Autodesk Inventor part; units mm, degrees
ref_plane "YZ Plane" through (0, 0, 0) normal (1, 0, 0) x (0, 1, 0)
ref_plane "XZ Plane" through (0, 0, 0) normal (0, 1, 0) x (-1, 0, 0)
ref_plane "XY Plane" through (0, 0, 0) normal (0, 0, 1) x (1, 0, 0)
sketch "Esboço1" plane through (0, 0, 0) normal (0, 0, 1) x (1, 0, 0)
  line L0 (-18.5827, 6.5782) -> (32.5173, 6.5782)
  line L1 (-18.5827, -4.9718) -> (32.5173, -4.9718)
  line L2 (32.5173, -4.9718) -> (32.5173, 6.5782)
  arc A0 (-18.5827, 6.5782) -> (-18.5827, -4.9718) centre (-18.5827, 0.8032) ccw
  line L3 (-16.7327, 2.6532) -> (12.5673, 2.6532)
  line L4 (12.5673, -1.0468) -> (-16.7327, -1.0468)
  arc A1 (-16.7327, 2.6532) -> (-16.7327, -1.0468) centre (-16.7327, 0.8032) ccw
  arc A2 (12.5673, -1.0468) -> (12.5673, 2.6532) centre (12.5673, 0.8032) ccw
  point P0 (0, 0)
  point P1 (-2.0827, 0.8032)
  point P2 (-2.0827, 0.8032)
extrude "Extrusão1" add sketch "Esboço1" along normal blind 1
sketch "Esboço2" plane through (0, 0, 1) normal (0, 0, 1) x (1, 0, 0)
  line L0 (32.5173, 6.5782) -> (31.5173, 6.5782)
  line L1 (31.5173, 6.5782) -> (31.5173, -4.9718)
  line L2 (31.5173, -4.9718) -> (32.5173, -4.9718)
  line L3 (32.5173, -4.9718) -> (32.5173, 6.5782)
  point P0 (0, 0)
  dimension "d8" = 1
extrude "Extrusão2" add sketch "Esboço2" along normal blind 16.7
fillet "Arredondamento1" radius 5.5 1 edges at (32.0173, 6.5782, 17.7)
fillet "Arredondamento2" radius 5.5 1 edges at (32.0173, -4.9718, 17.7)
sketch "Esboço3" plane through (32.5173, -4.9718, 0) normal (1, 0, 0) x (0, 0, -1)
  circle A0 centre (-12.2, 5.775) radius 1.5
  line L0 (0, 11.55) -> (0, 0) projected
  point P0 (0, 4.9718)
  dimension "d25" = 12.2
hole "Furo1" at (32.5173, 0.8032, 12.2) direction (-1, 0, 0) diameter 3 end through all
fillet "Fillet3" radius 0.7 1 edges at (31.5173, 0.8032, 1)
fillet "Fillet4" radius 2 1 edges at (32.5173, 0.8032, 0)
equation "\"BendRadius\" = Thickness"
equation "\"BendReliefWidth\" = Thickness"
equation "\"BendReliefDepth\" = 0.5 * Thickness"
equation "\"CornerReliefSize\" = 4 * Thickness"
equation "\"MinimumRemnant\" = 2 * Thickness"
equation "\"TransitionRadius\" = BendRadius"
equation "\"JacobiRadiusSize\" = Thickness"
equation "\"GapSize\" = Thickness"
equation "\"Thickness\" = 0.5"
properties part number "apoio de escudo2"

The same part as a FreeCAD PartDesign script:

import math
import FreeCAD as App
import Part
import Sketcher
from FreeCAD import Vector


def edges_at(feature, points):
    """Names of the edges that pass closest to the given points."""
    edges = feature.Shape.Edges
    near = lambda p: min(range(len(edges)), key=lambda i: edges[i].distToShape(Part.Vertex(*p))[0])
    return sorted({f"Edge{near(p) + 1}" for p in points})


def add_polygon(sketch, points):
    """Adds a closed chain of lines whose ends are joined by coincident constraints."""
    first, n = sketch.GeometryCount, len(points)
    for a, b in zip(points, points[1:] + points[:1]):
        sketch.addGeometry(Part.LineSegment(App.Vector(*a, 0), App.Vector(*b, 0)), False)
    for i in range(n):
        sketch.addConstraint(Sketcher.Constraint("Coincident", first + i, 2, first + (i + 1) % n, 1))

doc = App.newDocument("Part")
body = doc.addObject("PartDesign::Body", "Body")

# Sketch on XY plane
sketch1 = body.newObject("Sketcher::SketchObject", "Sketch")
sketch1.AttachmentSupport = (doc.getObject("XY_Plane"), [""])
sketch1.MapMode = "FlatFace"
sketch1.addGeometry([
    Part.LineSegment(Vector(32.5, 6.6, 0), Vector(-18.6, 6.6, 0)),  # 0
    Part.ArcOfCircle(Part.Circle(Vector(-18.6, 0.8, 0), Vector(0, 0, 1), 5.8), math.radians(90), math.radians(270)),  # 1
    Part.LineSegment(Vector(-18.6, -5, 0), Vector(32.5, -5, 0)),  # 2
    Part.LineSegment(Vector(32.5, -5, 0), Vector(32.5, 6.6, 0)),  # 3
    Part.ArcOfCircle(Part.Circle(Vector(-16.7, 0.8, 0), Vector(0, 0, 1), 1.9), math.radians(90), math.radians(270)),  # 4
    Part.LineSegment(Vector(-16.7, 2.7, 0), Vector(12.6, 2.7, 0)),  # 5
    Part.ArcOfCircle(Part.Circle(Vector(12.6, 0.8, 0), Vector(0, 0, 1), 1.9), math.radians(-90), math.radians(90)),  # 6
    Part.LineSegment(Vector(12.6, -1, 0), Vector(-16.7, -1, 0)),  # 7
], False)
sketch1.addConstraint([
    Sketcher.Constraint("Tangent", 0, 2, 1, 1),
    Sketcher.Constraint("Tangent", 1, 2, 2, 1),
    Sketcher.Constraint("Coincident", 2, 2, 3, 1),
    Sketcher.Constraint("Coincident", 3, 2, 0, 1),
    Sketcher.Constraint("Tangent", 4, 1, 5, 1),
    Sketcher.Constraint("Tangent", 5, 2, 6, 2),
    Sketcher.Constraint("Tangent", 6, 1, 7, 1),
    Sketcher.Constraint("Tangent", 7, 2, 4, 2),
    Sketcher.Constraint("Horizontal", 0),
    Sketcher.Constraint("Horizontal", 2),
    Sketcher.Constraint("Vertical", 3),
    Sketcher.Constraint("Horizontal", 5),
    Sketcher.Constraint("Horizontal", 7),
    Sketcher.Constraint("Horizontal", 1, 3, 4, 3),
    Sketcher.Constraint("Radius", 4, 1.85),
    Sketcher.Constraint("DistanceX", 0, 2, 0, 1, 51.1),
    Sketcher.Constraint("DistanceX", 5, 1, 5, 2, 29.3),
    Sketcher.Constraint("Radius", 1, 5.775),
    Sketcher.Constraint("DistanceX", 1, 3, 4, 3, 1.85),
    Sketcher.Constraint("DistanceX", 1, 3, -1, 1, 18.5827),
    Sketcher.Constraint("DistanceY", -1, 1, 1, 3, 0.8032),
])
pad1 = body.newObject("PartDesign::Pad", "Pad")
pad1.Profile = sketch1
pad1.Length = 1

# Sketch on XY plane
sketch2 = body.newObject("Sketcher::SketchObject", "Sketch001")
sketch2.AttachmentSupport = (doc.getObject("XY_Plane"), [""])
sketch2.MapMode = "FlatFace"
sketch2.AttachmentOffset = App.Placement(Vector(0, 0, 1), App.Rotation())
add_polygon(sketch2, [(32.5, -5), (32.5, 6.6), (31.5, 6.6), (31.5, -5)])  # lines 0-3
sketch2.addConstraint([
    Sketcher.Constraint("Vertical", 0),
    Sketcher.Constraint("Horizontal", 1),
    Sketcher.Constraint("Vertical", 2),
    Sketcher.Constraint("Horizontal", 3),
    Sketcher.Constraint("DistanceX", 1, 2, 1, 1, 1.0),
    Sketcher.Constraint("DistanceY", 0, 1, 0, 2, 11.55),
    Sketcher.Constraint("DistanceX", -1, 1, 0, 2, 32.5173),
    Sketcher.Constraint("DistanceY", -1, 1, 0, 2, 6.5782),
])
pad2 = body.newObject("PartDesign::Pad", "Pad001")
pad2.Profile = sketch2
pad2.Length = 16.7
doc.recompute()

fillet = body.newObject("PartDesign::Fillet", "Fillet")
fillet.Base = (pad2, edges_at(pad2, [(32.017, 6.578, 17.7)]))
fillet.Radius = 5.5
doc.recompute()

fillet2 = body.newObject("PartDesign::Fillet", "Fillet001")
fillet2.Base = (fillet, edges_at(fillet, [(32.017, -4.972, 17.7)]))
fillet2.Radius = 5.5

# Sketch on YZ plane
sketch3 = body.newObject("Sketcher::SketchObject", "Sketch002")
sketch3.AttachmentSupport = (doc.getObject("YZ_Plane"), [""])
sketch3.MapMode = "FlatFace"
sketch3.AttachmentOffset = App.Placement(Vector(0, 0, 32.5173), App.Rotation())
sketch3.addGeometry(Part.Circle(Vector(0.8, 12.2, 0), Vector(0, 0, 1), 1.5), False)
sketch3.addConstraint([
    Sketcher.Constraint("Diameter", 0, 3.0),
    Sketcher.Constraint("DistanceY", -1, 1, 0, 3, 12.2),
    Sketcher.Constraint("DistanceX", -1, 1, 0, 3, 0.8032),
])
doc.recompute()
hole = body.newObject("PartDesign::Hole", "Hole")
hole.Profile = sketch3
hole.ThreadType = "None"
hole.Diameter = 3
hole.DepthType = "ThroughAll"
doc.recompute()

fillet3 = body.newObject("PartDesign::Fillet", "Fillet002")
fillet3.Base = (hole, edges_at(hole, [(31.517, 0.803, 1)]))
fillet3.Radius = 0.7
doc.recompute()

fillet4 = body.newObject("PartDesign::Fillet", "Fillet003")
fillet4.Base = (fillet3, edges_at(fillet3, [(32.517, 0.803, 0)]))
fillet4.Radius = 2

doc.recompute()
